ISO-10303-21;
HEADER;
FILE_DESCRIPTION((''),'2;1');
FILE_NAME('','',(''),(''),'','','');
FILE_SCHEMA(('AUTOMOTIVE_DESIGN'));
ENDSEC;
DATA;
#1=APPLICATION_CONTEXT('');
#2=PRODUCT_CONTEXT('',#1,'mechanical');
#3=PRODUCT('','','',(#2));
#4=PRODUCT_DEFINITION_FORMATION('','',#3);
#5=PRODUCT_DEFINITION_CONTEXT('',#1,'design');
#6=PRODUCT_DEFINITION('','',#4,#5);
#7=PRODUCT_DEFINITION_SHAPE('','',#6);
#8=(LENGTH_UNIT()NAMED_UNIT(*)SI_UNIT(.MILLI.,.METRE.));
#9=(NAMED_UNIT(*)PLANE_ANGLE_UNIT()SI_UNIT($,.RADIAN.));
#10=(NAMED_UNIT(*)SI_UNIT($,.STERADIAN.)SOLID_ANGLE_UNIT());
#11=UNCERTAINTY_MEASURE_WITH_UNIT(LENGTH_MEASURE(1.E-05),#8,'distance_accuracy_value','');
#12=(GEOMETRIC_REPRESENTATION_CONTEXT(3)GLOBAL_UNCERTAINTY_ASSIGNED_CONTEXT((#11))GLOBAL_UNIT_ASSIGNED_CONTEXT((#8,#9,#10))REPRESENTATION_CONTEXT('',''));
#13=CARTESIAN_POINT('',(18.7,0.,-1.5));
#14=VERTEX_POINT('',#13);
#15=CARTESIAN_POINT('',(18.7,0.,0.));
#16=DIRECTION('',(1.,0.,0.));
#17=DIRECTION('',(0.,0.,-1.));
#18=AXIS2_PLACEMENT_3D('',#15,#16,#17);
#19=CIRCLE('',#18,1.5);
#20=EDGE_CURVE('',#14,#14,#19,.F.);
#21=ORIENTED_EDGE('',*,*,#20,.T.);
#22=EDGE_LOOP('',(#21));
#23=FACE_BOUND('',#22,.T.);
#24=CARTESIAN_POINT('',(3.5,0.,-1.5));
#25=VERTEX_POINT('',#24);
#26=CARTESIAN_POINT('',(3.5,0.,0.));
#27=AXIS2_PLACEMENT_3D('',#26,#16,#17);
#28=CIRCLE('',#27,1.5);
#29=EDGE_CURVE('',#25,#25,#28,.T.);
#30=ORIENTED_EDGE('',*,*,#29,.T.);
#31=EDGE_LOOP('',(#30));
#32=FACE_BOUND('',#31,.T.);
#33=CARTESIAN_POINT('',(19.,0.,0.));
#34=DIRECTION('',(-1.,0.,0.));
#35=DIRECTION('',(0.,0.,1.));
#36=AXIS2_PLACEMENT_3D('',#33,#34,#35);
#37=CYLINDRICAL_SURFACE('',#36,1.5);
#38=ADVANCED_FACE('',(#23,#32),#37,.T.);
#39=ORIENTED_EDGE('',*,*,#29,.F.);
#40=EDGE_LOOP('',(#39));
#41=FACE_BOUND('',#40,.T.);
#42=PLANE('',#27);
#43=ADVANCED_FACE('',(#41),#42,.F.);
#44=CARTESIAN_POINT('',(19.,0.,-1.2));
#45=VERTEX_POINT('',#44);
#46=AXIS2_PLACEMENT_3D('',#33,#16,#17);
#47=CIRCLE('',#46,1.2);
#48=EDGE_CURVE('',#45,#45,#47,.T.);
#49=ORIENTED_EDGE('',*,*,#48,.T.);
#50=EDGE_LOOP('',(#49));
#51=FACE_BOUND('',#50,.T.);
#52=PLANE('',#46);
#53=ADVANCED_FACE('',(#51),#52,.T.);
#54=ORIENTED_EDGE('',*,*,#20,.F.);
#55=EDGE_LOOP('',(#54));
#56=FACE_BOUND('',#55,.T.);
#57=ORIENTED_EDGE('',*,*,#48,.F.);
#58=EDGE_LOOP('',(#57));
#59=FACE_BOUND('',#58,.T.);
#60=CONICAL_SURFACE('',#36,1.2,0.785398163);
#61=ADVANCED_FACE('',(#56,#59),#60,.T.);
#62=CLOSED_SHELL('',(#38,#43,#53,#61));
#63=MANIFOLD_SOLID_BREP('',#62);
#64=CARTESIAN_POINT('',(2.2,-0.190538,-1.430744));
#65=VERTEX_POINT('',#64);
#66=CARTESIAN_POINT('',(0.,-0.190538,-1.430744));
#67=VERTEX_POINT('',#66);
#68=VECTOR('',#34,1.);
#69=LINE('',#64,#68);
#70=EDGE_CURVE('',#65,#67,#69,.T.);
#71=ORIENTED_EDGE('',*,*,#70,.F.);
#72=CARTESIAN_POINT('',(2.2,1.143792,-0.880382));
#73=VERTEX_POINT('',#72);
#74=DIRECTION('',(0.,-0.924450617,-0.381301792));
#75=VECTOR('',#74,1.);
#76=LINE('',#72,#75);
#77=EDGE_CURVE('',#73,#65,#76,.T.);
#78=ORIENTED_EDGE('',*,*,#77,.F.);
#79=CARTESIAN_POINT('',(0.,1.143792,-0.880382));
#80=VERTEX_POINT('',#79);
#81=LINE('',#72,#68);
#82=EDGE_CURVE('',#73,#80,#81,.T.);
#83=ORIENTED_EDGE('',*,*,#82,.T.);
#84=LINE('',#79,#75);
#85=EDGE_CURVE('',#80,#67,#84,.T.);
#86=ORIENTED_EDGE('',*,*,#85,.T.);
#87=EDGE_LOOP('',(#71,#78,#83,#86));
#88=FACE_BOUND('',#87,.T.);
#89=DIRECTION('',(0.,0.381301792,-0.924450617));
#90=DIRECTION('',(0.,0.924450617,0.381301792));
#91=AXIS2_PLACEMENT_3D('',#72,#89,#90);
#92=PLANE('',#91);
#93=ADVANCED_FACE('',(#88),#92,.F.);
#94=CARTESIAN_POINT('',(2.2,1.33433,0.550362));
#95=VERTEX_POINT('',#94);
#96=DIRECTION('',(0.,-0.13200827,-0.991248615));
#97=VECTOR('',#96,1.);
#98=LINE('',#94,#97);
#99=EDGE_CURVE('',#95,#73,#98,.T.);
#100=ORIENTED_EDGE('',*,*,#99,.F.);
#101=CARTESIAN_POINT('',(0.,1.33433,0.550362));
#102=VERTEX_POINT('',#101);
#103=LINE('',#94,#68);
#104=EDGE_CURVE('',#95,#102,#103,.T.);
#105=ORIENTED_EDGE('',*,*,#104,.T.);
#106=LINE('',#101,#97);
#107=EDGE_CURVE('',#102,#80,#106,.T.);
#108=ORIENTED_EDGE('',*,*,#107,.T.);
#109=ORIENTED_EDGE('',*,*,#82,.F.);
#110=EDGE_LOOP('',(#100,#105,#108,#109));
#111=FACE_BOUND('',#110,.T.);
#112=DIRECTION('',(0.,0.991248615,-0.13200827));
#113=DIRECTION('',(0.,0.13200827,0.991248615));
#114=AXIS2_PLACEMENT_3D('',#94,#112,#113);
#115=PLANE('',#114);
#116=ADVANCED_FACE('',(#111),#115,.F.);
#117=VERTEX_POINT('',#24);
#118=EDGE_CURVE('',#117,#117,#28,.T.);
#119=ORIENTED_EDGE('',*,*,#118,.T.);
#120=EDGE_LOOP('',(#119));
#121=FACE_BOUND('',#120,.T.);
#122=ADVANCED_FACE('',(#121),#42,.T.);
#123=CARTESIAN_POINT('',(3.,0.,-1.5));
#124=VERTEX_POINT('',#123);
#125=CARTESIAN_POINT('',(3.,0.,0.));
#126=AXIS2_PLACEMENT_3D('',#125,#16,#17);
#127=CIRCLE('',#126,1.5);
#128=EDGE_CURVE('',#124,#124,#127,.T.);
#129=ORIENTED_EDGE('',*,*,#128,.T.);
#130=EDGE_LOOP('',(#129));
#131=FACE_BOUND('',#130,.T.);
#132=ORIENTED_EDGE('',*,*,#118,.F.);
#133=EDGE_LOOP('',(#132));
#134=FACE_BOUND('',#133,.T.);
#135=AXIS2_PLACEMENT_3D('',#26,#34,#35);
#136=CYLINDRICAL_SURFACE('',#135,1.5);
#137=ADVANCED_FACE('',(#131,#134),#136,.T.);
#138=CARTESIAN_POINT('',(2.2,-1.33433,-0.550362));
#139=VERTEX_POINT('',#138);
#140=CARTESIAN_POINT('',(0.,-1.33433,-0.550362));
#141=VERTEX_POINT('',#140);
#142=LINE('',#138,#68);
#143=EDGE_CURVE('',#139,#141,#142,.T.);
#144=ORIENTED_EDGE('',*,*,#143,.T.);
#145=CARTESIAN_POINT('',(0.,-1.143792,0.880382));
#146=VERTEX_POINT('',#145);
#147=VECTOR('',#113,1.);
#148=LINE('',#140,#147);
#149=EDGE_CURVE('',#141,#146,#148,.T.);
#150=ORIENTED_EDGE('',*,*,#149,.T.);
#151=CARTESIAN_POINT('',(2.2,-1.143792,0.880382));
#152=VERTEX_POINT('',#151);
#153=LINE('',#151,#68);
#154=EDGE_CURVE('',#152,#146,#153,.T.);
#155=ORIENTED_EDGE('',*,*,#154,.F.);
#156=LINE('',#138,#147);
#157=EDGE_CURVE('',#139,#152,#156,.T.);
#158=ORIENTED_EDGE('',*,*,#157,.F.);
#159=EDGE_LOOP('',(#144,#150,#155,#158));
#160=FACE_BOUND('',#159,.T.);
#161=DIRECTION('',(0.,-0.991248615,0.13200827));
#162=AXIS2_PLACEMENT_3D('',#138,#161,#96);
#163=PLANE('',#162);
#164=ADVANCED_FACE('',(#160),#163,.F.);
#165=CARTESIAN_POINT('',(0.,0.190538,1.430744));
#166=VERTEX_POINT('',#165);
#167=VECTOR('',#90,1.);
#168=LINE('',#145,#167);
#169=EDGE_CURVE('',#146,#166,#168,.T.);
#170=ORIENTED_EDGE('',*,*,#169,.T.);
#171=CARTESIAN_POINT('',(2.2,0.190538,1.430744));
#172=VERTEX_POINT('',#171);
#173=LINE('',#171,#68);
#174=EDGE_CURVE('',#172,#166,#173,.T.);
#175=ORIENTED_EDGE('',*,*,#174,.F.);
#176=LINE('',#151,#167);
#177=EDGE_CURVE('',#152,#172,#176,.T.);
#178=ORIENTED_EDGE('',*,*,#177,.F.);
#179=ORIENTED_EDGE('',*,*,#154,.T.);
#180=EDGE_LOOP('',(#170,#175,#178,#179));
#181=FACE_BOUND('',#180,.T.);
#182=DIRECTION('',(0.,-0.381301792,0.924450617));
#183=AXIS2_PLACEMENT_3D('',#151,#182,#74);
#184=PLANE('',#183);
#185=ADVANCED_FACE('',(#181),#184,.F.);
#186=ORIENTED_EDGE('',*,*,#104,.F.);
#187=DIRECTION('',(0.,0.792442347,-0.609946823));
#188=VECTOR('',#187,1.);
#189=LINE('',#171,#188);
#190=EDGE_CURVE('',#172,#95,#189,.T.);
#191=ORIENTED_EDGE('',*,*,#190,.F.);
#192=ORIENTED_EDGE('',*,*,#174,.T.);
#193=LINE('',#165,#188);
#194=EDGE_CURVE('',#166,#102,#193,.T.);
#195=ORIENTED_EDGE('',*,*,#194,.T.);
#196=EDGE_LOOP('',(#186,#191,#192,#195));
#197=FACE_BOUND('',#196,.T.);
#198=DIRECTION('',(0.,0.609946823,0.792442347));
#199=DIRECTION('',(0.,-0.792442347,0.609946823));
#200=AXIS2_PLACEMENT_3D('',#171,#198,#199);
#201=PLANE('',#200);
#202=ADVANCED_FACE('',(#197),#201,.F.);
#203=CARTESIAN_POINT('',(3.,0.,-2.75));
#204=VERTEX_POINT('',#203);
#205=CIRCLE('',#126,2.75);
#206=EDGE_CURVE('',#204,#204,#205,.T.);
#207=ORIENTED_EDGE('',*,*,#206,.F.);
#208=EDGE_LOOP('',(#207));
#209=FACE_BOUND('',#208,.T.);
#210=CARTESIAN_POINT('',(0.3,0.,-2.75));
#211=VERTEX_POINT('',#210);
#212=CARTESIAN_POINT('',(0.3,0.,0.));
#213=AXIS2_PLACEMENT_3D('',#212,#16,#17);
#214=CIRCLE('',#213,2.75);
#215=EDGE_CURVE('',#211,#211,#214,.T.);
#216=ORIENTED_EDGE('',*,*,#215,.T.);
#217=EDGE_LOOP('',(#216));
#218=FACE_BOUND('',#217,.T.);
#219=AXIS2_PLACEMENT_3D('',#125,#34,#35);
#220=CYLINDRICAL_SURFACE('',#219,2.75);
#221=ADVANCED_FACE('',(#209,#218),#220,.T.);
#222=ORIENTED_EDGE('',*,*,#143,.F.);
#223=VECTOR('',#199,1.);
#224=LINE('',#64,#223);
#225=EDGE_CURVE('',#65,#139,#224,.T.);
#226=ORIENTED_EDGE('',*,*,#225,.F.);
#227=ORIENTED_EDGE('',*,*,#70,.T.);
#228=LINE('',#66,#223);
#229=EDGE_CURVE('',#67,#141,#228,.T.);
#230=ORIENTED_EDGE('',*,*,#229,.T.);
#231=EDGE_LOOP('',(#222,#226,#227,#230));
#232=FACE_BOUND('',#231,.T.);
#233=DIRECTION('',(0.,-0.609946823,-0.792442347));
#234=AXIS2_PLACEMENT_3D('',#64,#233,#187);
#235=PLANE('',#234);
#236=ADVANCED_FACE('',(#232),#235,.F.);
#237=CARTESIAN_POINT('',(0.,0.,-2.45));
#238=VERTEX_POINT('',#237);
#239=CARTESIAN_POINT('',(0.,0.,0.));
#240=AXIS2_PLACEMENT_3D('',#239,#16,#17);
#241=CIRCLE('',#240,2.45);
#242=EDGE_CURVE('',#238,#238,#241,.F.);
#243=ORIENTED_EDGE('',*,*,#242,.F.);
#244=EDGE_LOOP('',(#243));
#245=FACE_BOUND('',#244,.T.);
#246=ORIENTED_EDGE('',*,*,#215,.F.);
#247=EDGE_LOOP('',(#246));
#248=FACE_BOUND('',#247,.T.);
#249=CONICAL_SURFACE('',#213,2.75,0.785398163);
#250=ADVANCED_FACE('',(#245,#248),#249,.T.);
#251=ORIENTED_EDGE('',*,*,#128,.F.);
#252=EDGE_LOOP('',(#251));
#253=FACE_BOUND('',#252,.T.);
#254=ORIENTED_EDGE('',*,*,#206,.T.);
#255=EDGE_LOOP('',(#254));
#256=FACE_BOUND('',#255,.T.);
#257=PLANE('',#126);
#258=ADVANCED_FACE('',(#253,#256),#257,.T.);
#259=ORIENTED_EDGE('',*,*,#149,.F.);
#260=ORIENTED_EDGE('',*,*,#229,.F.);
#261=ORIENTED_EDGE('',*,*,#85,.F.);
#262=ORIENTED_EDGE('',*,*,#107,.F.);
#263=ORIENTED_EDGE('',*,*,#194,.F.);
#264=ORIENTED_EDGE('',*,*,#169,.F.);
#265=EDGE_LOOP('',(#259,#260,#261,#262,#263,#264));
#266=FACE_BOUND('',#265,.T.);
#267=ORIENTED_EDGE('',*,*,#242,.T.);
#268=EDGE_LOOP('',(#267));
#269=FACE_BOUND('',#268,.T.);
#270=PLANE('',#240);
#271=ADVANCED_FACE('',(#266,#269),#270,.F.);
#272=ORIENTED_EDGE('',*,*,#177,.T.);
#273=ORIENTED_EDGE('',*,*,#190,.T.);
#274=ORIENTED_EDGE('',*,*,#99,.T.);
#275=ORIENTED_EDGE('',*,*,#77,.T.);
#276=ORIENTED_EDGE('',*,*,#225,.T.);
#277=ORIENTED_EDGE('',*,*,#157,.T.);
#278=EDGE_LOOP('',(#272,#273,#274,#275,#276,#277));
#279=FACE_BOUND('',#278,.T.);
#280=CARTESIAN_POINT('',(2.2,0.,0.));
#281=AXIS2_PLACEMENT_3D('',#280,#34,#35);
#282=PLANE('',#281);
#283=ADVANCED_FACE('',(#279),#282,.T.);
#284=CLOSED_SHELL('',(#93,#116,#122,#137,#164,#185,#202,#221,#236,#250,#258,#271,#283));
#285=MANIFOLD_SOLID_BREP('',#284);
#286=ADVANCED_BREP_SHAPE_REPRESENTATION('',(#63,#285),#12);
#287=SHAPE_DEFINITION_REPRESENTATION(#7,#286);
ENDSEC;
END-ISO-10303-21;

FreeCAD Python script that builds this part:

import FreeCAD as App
import Part
import Sketcher


def edges_at(feature, points):
    """Names of the edges that pass closest to the given points."""
    edges = feature.Shape.Edges
    near = lambda p: min(range(len(edges)), key=lambda i: edges[i].distToShape(Part.Vertex(*p))[0])
    return sorted({f"Edge{near(p) + 1}" for p in points})

doc = App.newDocument("Part")
body = doc.addObject("PartDesign::Body", "Body")

# Sketch on YZ plane
sketch1 = body.newObject("Sketcher::SketchObject", "Sketch")
sketch1.AttachmentSupport = (doc.getObject("YZ_Plane"), [""])
sketch1.MapMode = "FlatFace"
sketch1.addGeometry(Part.Circle(App.Vector(0, 0, 0), App.Vector(0, 0, 1), 2.75), False)
sketch1.addConstraint(Sketcher.Constraint("Coincident", 0, 3, -1, 1))
sketch1.addConstraint(Sketcher.Constraint("Diameter", 0, 5.5))
pad1 = body.newObject("PartDesign::Pad", "Pad")
pad1.Profile = sketch1
pad1.Length = 3

# Sketch on YZ plane
sketch2 = body.newObject("Sketcher::SketchObject", "Sketch001")
sketch2.AttachmentSupport = (doc.getObject("YZ_Plane"), [""])
sketch2.MapMode = "FlatFace"
sketch2.AttachmentOffset = App.Placement(App.Vector(0, 0, 3), App.Rotation())
sketch2.addGeometry(Part.Circle(App.Vector(0, 0, 0), App.Vector(0, 0, 1), 1.5), False)
sketch2.addConstraint(Sketcher.Constraint("Coincident", 0, 3, -1, 1))
sketch2.addConstraint(Sketcher.Constraint("Diameter", 0, 3.0))
pad2 = body.newObject("PartDesign::Pad", "Pad001")
pad2.Profile = sketch2
pad2.Length = 0.5
doc.recompute()

chamfer = body.newObject("PartDesign::Chamfer", "Chamfer")
chamfer.Base = (pad2, edges_at(pad2, [(0, 0, 2.75)]))
chamfer.Size = 0.3

# Sketch on YZ plane
sketch3 = body.newObject("Sketcher::SketchObject", "Sketch002")
sketch3.AttachmentSupport = (doc.getObject("YZ_Plane"), [""])
sketch3.MapMode = "FlatFace"
sketch3.addGeometry(Part.LineSegment(App.Vector(0.190538, 1.430744, 0), App.Vector(1.33433, 0.550362, 0)), False)
sketch3.addGeometry(Part.LineSegment(App.Vector(1.33433, 0.550362, 0), App.Vector(1.143792, -0.880382, 0)), False)
sketch3.addGeometry(Part.LineSegment(App.Vector(1.143792, -0.880382, 0), App.Vector(-0.190538, -1.430744, 0)), False)
sketch3.addGeometry(Part.LineSegment(App.Vector(-0.190538, -1.430744, 0), App.Vector(-1.33433, -0.550362, 0)), False)
sketch3.addGeometry(Part.LineSegment(App.Vector(-1.33433, -0.550362, 0), App.Vector(-1.143792, 0.880382, 0)), False)
sketch3.addGeometry(Part.LineSegment(App.Vector(-1.143792, 0.880382, 0), App.Vector(0.190538, 1.430744, 0)), False)
sketch3.addConstraint(Sketcher.Constraint("Coincident", 0, 2, 1, 1))
sketch3.addConstraint(Sketcher.Constraint("Coincident", 1, 2, 2, 1))
sketch3.addConstraint(Sketcher.Constraint("Coincident", 2, 2, 3, 1))
sketch3.addConstraint(Sketcher.Constraint("Coincident", 3, 2, 4, 1))
sketch3.addConstraint(Sketcher.Constraint("Coincident", 4, 2, 5, 1))
sketch3.addConstraint(Sketcher.Constraint("Coincident", 5, 2, 0, 1))
sketch3.addConstraint(Sketcher.Constraint("Symmetric", 0, 2, 3, 2, -1, 1))
sketch3.addConstraint(Sketcher.Constraint("Symmetric", 1, 2, 4, 2, -1, 1))
sketch3.addConstraint(Sketcher.Constraint("Symmetric", 2, 2, 5, 2, -1, 1))
sketch3.addConstraint(Sketcher.Constraint("Equal", 0, 1))
sketch3.addConstraint(Sketcher.Constraint("Equal", 1, 2))
sketch3.addConstraint(Sketcher.Constraint("DistanceX", -1, 1, 0, 2, 1.33433))
sketch3.addConstraint(Sketcher.Constraint("DistanceY", -1, 1, 0, 2, 0.550362))
sketch3.addConstraint(Sketcher.Constraint("DistanceX", 2, 2, 1, 2, 1.33433))
sketch3.addConstraint(Sketcher.Constraint("DistanceY", 2, 2, 1, 2, 0.550362))
pocket1 = body.newObject("PartDesign::Pocket", "Pocket")
pocket1.Profile = sketch3
pocket1.Length = 2.2
pocket1.Reversed = True
body2 = doc.addObject("PartDesign::Body", "Body001")

# Sketch on YZ plane
sketch4 = body2.newObject("Sketcher::SketchObject", "Sketch003")
sketch4.AttachmentSupport = (doc.getObject("YZ_Plane001"), [""])
sketch4.MapMode = "FlatFace"
sketch4.AttachmentOffset = App.Placement(App.Vector(0, 0, 3.5), App.Rotation())
sketch4.addGeometry(Part.Circle(App.Vector(0, 0, 0), App.Vector(0, 0, 1), 1.5), False)
sketch4.addConstraint(Sketcher.Constraint("Coincident", 0, 3, -1, 1))
sketch4.addConstraint(Sketcher.Constraint("Diameter", 0, 3.0))
pad3 = body2.newObject("PartDesign::Pad", "Pad002")
pad3.Profile = sketch4
pad3.Length = 15.5
doc.recompute()

chamfer2 = body2.newObject("PartDesign::Chamfer", "Chamfer001")
chamfer2.Base = (pad3, edges_at(pad3, [(19, 0, 1.5)]))
chamfer2.Size = 0.3

doc.recompute()
